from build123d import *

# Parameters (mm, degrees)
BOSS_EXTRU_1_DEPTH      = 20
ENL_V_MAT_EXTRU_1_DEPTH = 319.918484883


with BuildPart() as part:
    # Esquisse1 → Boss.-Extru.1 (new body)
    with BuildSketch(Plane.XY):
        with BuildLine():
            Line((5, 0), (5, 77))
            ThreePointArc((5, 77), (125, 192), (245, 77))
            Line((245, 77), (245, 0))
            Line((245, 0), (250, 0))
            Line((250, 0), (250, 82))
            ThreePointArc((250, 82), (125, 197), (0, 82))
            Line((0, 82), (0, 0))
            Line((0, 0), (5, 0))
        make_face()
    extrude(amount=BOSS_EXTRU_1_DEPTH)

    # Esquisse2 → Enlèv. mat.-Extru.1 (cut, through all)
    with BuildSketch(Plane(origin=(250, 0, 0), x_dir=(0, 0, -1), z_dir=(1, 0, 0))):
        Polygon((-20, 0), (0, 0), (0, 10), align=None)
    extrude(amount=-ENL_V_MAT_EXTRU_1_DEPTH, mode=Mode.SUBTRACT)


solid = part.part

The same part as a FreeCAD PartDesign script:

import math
import FreeCAD as App
import Part
import Sketcher
from FreeCAD import Vector
Q = App.Units.Quantity


def add_polygon(sketch, points):
    """Adds a closed chain of lines whose ends are joined by coincident constraints."""
    first, n = sketch.GeometryCount, len(points)
    for a, b in zip(points, points[1:] + points[:1]):
        sketch.addGeometry(Part.LineSegment(App.Vector(*a, 0), App.Vector(*b, 0)), False)
    for i in range(n):
        sketch.addConstraint(Sketcher.Constraint("Coincident", first + i, 2, first + (i + 1) % n, 1))

doc = App.newDocument("Part")
params = doc.addObject("Spreadsheet::Sheet", "Params")
for row, (alias, value) in enumerate([
    ("sketch1_width", "5 mm"),
    ("sketch1_height", "77 mm"),
    ("sketch1_height2", "82 mm"),
    ("pad1_length", "20 mm"),
    ("sketch2_width", "10 mm"),
    ("sketch2_height", "20 mm"),
], start=1):
    params.set(f"A{row}", alias)
    params.set(f"B{row}", "=" + value)
    params.setAlias(f"B{row}", alias)

body = doc.addObject("PartDesign::Body", "Body")

# Sketch on XY plane
sketch1 = body.newObject("Sketcher::SketchObject", "Sketch")
sketch1.AttachmentSupport = (doc.getObject("XY_Plane"), [""])
sketch1.MapMode = "FlatFace"
sketch1.addGeometry([
    Part.LineSegment(Vector(5, 0, 0), Vector(5, 77, 0)),  # 0
    Part.ArcOfCircle(Part.Circle(Vector(125, 72, 0), Vector(0, 0, 1), 120), math.radians(2), math.radians(178)),  # 1
    Part.LineSegment(Vector(245, 77, 0), Vector(245, 0, 0)),  # 2
    Part.LineSegment(Vector(245, 0, 0), Vector(250, 0, 0)),  # 3
    Part.LineSegment(Vector(250, 0, 0), Vector(250, 82, 0)),  # 4
    Part.ArcOfCircle(Part.Circle(Vector(125, 72, 0), Vector(0, 0, 1), 125), math.radians(5), math.radians(175)),  # 5
    Part.LineSegment(Vector(0, 82, 0), Vector(0, 0, 0)),  # 6
    Part.LineSegment(Vector(0, 0, 0), Vector(5, 0, 0)),  # 7
], False)
sketch1.addConstraint([
    Sketcher.Constraint("Coincident", 0, 2, 1, 2),
    Sketcher.Constraint("Coincident", 1, 1, 2, 1),
    Sketcher.Constraint("Coincident", 2, 2, 3, 1),
    Sketcher.Constraint("Coincident", 3, 2, 4, 1),
    Sketcher.Constraint("Coincident", 4, 2, 5, 1),
    Sketcher.Constraint("Coincident", 5, 2, 6, 1),
    Sketcher.Constraint("Coincident", 6, 2, 7, 1),
    Sketcher.Constraint("Coincident", 7, 2, 0, 1),
    Sketcher.Constraint("Vertical", 0),
    Sketcher.Constraint("Vertical", 2),
    Sketcher.Constraint("Horizontal", 3),
    Sketcher.Constraint("Vertical", 4),
    Sketcher.Constraint("Vertical", 6),
    Sketcher.Constraint("Horizontal", 7),
    Sketcher.Constraint("Coincident", 6, 2, -1, 1),
    Sketcher.Constraint("PointOnObject", 2, 2, -1),
    Sketcher.Constraint("Horizontal", 0, 2, 1, 1),
    Sketcher.Constraint("Horizontal", 4, 2, 5, 2),
    Sketcher.Constraint("Vertical", 1, 3, 5, 3),
    Sketcher.Constraint("DistanceX", 3, 1, 3, 2, Q("5 mm")),
    Sketcher.Constraint("DistanceY", 0, 1, 0, 2, Q("77 mm")),
    Sketcher.Constraint("DistanceY", 4, 1, 4, 2, Q("82 mm")),
    Sketcher.Constraint("DistanceX", -1, 1, 1, 3, Q("125 mm")),
    Sketcher.Constraint("Radius", 1, Q("120.108696 mm")),
    Sketcher.Constraint("Radius", 5, Q("125.434783 mm")),
])
sketch1.setExpression("Constraints[19]", "Params.sketch1_width")
sketch1.setExpression("Constraints[20]", "Params.sketch1_height")
sketch1.setExpression("Constraints[21]", "Params.sketch1_height2")
pad1 = body.newObject("PartDesign::Pad", "Pad")
pad1.Profile = sketch1
pad1.setExpression("Length", "Params.pad1_length")

# Sketch on YZ plane
sketch2 = body.newObject("Sketcher::SketchObject", "Sketch001")
sketch2.AttachmentSupport = (doc.getObject("YZ_Plane"), [""])
sketch2.MapMode = "FlatFace"
sketch2.AttachmentOffset = App.Placement(Vector(0, 0, 250), App.Rotation())
add_polygon(sketch2, [(0, 20), (0, 0), (10, 0)])  # lines 0-2
sketch2.addConstraint([
    Sketcher.Constraint("Vertical", 0),
    Sketcher.Constraint("Horizontal", 1),
    Sketcher.Constraint("Coincident", 0, 2, -1, 1),
    Sketcher.Constraint("DistanceX", 1, 1, 1, 2, Q("10 mm")),
    Sketcher.Constraint("DistanceY", 0, 2, 0, 1, Q("20 mm")),
])
sketch2.setExpression("Constraints[6]", "Params.sketch2_width")
sketch2.setExpression("Constraints[7]", "Params.sketch2_height")
pocket1 = body.newObject("PartDesign::Pocket", "Pocket")
pocket1.Profile = sketch2
pocket1.Type = "ThroughAll"

doc.recompute()
